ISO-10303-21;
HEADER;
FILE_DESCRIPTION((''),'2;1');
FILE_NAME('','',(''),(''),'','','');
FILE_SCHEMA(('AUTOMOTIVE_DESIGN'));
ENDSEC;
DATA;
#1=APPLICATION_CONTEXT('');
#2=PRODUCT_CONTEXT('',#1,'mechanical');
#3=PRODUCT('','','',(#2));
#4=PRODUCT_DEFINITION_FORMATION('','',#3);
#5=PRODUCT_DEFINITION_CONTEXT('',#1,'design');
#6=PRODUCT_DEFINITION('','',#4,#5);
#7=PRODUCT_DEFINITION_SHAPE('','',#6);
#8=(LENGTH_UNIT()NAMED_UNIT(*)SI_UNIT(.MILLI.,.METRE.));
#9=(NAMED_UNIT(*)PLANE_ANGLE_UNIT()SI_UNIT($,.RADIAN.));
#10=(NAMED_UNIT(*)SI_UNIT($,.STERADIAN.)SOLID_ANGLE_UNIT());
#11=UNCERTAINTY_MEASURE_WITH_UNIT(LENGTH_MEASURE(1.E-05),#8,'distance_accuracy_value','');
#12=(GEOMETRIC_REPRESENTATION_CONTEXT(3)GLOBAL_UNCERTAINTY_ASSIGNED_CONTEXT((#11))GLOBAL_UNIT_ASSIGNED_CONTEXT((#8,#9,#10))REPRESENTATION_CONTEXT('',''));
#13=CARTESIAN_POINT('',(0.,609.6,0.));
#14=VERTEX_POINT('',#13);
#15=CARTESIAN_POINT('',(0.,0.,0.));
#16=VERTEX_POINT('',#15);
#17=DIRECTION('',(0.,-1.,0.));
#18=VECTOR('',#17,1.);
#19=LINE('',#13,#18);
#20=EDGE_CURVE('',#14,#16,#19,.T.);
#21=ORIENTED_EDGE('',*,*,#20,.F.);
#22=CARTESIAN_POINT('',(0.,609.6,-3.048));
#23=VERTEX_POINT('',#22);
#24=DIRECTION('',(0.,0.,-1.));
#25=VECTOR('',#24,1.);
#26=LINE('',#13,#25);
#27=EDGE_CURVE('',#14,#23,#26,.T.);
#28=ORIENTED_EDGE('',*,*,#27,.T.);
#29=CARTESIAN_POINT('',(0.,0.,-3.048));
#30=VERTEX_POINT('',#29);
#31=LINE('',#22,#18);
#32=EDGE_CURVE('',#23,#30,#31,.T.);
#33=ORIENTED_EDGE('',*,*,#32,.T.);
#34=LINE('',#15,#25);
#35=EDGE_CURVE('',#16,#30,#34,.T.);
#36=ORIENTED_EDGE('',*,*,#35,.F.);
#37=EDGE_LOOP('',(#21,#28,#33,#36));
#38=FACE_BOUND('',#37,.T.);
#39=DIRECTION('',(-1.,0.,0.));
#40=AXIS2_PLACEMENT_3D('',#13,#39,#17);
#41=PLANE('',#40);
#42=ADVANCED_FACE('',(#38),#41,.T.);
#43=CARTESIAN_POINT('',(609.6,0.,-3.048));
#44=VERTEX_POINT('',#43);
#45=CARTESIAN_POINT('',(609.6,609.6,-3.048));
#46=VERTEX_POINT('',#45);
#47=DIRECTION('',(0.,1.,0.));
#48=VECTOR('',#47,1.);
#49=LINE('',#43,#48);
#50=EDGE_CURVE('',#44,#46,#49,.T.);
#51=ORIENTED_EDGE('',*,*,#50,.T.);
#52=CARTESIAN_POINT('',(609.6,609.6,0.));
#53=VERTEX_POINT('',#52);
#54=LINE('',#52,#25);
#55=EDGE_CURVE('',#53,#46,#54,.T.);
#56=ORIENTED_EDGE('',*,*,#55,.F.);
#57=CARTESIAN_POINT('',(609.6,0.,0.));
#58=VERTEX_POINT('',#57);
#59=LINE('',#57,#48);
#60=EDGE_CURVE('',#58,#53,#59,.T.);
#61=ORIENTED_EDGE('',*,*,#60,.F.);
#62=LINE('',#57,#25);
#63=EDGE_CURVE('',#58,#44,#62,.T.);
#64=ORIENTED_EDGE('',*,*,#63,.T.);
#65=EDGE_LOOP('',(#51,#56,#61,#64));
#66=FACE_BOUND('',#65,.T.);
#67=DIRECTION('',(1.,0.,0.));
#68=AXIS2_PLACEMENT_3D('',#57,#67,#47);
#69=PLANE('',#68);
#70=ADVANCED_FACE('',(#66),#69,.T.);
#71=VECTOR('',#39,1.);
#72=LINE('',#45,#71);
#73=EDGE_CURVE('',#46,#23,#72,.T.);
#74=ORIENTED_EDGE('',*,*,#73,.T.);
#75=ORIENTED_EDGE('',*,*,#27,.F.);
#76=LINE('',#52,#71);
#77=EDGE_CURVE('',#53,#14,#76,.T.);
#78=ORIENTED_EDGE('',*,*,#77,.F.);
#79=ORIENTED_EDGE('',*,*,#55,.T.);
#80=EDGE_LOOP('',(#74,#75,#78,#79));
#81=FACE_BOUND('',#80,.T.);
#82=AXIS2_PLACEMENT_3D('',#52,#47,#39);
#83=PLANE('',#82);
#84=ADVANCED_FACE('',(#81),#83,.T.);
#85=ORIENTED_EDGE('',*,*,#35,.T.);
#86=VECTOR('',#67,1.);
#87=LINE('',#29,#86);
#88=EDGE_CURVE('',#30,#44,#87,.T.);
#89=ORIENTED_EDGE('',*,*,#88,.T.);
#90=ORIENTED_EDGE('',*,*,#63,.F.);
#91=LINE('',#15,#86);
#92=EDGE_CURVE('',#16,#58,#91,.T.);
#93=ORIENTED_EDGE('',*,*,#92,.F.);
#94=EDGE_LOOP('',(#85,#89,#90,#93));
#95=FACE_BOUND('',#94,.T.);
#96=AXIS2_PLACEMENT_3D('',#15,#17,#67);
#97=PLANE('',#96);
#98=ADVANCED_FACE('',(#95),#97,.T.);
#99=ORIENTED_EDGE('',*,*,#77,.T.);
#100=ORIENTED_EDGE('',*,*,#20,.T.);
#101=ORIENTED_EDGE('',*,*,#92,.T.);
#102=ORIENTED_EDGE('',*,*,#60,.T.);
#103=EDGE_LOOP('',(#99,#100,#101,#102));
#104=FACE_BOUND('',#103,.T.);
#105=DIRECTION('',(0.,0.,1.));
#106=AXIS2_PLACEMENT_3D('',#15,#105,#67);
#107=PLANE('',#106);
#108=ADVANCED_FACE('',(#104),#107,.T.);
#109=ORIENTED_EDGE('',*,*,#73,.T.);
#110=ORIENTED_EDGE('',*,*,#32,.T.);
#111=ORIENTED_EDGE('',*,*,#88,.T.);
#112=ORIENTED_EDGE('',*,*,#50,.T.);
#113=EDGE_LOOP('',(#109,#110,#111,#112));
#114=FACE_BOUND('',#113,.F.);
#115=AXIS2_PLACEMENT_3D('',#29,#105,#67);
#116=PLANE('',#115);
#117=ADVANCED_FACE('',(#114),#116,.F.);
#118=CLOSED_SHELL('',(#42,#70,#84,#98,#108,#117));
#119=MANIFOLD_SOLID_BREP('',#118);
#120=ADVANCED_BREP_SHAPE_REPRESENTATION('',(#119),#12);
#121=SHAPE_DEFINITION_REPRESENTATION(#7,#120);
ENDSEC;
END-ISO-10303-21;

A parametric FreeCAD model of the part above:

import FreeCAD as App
import Part
import Sketcher

V = App.Vector
Q = App.Units.Quantity


def add_polygon(sketch, points):
    """Adds a closed chain of lines whose ends are joined by coincident constraints."""
    first, n = sketch.GeometryCount, len(points)
    for a, b in zip(points, points[1:] + points[:1]):
        sketch.addGeometry(Part.LineSegment(App.Vector(*a, 0), App.Vector(*b, 0)), False)
    for i in range(n):
        sketch.addConstraint(Sketcher.Constraint("Coincident", first + i, 2, first + (i + 1) % n, 1))

doc = App.newDocument("Part")
body = doc.addObject("PartDesign::Body", "Body")

# Sketch on XY plane
sketch1 = doc.addObject("Sketcher::SketchObject", "Sketch")
body.addObject(sketch1)
sketch1.AttachmentSupport = (doc.XY_Plane, [""])
sketch1.MapMode = "FlatFace"
add_polygon(sketch1, [(0, 609.6), (0, 0), (609.6, 0), (609.6, 609.6)])  # lines 0-3
sketch1.addConstraint(Sketcher.Constraint("Vertical", 0))
sketch1.addConstraint(Sketcher.Constraint("Horizontal", 1))
sketch1.addConstraint(Sketcher.Constraint("Vertical", 2))
sketch1.addConstraint(Sketcher.Constraint("Horizontal", 3))
sketch1.addConstraint(Sketcher.Constraint("Coincident", 0, 2, -1, 1))
sketch1.addConstraint(Sketcher.Constraint("Equal", 3, 0))
sketch1.addConstraint(Sketcher.Constraint("DistanceX", 1, 1, 1, 2, Q("24 in")))
pad1 = doc.addObject("PartDesign::Pad", "Pad")
body.addObject(pad1)
pad1.Profile = sketch1
pad1.Length = Q("0.12 in")
pad1.Reversed = True

doc.recompute()
